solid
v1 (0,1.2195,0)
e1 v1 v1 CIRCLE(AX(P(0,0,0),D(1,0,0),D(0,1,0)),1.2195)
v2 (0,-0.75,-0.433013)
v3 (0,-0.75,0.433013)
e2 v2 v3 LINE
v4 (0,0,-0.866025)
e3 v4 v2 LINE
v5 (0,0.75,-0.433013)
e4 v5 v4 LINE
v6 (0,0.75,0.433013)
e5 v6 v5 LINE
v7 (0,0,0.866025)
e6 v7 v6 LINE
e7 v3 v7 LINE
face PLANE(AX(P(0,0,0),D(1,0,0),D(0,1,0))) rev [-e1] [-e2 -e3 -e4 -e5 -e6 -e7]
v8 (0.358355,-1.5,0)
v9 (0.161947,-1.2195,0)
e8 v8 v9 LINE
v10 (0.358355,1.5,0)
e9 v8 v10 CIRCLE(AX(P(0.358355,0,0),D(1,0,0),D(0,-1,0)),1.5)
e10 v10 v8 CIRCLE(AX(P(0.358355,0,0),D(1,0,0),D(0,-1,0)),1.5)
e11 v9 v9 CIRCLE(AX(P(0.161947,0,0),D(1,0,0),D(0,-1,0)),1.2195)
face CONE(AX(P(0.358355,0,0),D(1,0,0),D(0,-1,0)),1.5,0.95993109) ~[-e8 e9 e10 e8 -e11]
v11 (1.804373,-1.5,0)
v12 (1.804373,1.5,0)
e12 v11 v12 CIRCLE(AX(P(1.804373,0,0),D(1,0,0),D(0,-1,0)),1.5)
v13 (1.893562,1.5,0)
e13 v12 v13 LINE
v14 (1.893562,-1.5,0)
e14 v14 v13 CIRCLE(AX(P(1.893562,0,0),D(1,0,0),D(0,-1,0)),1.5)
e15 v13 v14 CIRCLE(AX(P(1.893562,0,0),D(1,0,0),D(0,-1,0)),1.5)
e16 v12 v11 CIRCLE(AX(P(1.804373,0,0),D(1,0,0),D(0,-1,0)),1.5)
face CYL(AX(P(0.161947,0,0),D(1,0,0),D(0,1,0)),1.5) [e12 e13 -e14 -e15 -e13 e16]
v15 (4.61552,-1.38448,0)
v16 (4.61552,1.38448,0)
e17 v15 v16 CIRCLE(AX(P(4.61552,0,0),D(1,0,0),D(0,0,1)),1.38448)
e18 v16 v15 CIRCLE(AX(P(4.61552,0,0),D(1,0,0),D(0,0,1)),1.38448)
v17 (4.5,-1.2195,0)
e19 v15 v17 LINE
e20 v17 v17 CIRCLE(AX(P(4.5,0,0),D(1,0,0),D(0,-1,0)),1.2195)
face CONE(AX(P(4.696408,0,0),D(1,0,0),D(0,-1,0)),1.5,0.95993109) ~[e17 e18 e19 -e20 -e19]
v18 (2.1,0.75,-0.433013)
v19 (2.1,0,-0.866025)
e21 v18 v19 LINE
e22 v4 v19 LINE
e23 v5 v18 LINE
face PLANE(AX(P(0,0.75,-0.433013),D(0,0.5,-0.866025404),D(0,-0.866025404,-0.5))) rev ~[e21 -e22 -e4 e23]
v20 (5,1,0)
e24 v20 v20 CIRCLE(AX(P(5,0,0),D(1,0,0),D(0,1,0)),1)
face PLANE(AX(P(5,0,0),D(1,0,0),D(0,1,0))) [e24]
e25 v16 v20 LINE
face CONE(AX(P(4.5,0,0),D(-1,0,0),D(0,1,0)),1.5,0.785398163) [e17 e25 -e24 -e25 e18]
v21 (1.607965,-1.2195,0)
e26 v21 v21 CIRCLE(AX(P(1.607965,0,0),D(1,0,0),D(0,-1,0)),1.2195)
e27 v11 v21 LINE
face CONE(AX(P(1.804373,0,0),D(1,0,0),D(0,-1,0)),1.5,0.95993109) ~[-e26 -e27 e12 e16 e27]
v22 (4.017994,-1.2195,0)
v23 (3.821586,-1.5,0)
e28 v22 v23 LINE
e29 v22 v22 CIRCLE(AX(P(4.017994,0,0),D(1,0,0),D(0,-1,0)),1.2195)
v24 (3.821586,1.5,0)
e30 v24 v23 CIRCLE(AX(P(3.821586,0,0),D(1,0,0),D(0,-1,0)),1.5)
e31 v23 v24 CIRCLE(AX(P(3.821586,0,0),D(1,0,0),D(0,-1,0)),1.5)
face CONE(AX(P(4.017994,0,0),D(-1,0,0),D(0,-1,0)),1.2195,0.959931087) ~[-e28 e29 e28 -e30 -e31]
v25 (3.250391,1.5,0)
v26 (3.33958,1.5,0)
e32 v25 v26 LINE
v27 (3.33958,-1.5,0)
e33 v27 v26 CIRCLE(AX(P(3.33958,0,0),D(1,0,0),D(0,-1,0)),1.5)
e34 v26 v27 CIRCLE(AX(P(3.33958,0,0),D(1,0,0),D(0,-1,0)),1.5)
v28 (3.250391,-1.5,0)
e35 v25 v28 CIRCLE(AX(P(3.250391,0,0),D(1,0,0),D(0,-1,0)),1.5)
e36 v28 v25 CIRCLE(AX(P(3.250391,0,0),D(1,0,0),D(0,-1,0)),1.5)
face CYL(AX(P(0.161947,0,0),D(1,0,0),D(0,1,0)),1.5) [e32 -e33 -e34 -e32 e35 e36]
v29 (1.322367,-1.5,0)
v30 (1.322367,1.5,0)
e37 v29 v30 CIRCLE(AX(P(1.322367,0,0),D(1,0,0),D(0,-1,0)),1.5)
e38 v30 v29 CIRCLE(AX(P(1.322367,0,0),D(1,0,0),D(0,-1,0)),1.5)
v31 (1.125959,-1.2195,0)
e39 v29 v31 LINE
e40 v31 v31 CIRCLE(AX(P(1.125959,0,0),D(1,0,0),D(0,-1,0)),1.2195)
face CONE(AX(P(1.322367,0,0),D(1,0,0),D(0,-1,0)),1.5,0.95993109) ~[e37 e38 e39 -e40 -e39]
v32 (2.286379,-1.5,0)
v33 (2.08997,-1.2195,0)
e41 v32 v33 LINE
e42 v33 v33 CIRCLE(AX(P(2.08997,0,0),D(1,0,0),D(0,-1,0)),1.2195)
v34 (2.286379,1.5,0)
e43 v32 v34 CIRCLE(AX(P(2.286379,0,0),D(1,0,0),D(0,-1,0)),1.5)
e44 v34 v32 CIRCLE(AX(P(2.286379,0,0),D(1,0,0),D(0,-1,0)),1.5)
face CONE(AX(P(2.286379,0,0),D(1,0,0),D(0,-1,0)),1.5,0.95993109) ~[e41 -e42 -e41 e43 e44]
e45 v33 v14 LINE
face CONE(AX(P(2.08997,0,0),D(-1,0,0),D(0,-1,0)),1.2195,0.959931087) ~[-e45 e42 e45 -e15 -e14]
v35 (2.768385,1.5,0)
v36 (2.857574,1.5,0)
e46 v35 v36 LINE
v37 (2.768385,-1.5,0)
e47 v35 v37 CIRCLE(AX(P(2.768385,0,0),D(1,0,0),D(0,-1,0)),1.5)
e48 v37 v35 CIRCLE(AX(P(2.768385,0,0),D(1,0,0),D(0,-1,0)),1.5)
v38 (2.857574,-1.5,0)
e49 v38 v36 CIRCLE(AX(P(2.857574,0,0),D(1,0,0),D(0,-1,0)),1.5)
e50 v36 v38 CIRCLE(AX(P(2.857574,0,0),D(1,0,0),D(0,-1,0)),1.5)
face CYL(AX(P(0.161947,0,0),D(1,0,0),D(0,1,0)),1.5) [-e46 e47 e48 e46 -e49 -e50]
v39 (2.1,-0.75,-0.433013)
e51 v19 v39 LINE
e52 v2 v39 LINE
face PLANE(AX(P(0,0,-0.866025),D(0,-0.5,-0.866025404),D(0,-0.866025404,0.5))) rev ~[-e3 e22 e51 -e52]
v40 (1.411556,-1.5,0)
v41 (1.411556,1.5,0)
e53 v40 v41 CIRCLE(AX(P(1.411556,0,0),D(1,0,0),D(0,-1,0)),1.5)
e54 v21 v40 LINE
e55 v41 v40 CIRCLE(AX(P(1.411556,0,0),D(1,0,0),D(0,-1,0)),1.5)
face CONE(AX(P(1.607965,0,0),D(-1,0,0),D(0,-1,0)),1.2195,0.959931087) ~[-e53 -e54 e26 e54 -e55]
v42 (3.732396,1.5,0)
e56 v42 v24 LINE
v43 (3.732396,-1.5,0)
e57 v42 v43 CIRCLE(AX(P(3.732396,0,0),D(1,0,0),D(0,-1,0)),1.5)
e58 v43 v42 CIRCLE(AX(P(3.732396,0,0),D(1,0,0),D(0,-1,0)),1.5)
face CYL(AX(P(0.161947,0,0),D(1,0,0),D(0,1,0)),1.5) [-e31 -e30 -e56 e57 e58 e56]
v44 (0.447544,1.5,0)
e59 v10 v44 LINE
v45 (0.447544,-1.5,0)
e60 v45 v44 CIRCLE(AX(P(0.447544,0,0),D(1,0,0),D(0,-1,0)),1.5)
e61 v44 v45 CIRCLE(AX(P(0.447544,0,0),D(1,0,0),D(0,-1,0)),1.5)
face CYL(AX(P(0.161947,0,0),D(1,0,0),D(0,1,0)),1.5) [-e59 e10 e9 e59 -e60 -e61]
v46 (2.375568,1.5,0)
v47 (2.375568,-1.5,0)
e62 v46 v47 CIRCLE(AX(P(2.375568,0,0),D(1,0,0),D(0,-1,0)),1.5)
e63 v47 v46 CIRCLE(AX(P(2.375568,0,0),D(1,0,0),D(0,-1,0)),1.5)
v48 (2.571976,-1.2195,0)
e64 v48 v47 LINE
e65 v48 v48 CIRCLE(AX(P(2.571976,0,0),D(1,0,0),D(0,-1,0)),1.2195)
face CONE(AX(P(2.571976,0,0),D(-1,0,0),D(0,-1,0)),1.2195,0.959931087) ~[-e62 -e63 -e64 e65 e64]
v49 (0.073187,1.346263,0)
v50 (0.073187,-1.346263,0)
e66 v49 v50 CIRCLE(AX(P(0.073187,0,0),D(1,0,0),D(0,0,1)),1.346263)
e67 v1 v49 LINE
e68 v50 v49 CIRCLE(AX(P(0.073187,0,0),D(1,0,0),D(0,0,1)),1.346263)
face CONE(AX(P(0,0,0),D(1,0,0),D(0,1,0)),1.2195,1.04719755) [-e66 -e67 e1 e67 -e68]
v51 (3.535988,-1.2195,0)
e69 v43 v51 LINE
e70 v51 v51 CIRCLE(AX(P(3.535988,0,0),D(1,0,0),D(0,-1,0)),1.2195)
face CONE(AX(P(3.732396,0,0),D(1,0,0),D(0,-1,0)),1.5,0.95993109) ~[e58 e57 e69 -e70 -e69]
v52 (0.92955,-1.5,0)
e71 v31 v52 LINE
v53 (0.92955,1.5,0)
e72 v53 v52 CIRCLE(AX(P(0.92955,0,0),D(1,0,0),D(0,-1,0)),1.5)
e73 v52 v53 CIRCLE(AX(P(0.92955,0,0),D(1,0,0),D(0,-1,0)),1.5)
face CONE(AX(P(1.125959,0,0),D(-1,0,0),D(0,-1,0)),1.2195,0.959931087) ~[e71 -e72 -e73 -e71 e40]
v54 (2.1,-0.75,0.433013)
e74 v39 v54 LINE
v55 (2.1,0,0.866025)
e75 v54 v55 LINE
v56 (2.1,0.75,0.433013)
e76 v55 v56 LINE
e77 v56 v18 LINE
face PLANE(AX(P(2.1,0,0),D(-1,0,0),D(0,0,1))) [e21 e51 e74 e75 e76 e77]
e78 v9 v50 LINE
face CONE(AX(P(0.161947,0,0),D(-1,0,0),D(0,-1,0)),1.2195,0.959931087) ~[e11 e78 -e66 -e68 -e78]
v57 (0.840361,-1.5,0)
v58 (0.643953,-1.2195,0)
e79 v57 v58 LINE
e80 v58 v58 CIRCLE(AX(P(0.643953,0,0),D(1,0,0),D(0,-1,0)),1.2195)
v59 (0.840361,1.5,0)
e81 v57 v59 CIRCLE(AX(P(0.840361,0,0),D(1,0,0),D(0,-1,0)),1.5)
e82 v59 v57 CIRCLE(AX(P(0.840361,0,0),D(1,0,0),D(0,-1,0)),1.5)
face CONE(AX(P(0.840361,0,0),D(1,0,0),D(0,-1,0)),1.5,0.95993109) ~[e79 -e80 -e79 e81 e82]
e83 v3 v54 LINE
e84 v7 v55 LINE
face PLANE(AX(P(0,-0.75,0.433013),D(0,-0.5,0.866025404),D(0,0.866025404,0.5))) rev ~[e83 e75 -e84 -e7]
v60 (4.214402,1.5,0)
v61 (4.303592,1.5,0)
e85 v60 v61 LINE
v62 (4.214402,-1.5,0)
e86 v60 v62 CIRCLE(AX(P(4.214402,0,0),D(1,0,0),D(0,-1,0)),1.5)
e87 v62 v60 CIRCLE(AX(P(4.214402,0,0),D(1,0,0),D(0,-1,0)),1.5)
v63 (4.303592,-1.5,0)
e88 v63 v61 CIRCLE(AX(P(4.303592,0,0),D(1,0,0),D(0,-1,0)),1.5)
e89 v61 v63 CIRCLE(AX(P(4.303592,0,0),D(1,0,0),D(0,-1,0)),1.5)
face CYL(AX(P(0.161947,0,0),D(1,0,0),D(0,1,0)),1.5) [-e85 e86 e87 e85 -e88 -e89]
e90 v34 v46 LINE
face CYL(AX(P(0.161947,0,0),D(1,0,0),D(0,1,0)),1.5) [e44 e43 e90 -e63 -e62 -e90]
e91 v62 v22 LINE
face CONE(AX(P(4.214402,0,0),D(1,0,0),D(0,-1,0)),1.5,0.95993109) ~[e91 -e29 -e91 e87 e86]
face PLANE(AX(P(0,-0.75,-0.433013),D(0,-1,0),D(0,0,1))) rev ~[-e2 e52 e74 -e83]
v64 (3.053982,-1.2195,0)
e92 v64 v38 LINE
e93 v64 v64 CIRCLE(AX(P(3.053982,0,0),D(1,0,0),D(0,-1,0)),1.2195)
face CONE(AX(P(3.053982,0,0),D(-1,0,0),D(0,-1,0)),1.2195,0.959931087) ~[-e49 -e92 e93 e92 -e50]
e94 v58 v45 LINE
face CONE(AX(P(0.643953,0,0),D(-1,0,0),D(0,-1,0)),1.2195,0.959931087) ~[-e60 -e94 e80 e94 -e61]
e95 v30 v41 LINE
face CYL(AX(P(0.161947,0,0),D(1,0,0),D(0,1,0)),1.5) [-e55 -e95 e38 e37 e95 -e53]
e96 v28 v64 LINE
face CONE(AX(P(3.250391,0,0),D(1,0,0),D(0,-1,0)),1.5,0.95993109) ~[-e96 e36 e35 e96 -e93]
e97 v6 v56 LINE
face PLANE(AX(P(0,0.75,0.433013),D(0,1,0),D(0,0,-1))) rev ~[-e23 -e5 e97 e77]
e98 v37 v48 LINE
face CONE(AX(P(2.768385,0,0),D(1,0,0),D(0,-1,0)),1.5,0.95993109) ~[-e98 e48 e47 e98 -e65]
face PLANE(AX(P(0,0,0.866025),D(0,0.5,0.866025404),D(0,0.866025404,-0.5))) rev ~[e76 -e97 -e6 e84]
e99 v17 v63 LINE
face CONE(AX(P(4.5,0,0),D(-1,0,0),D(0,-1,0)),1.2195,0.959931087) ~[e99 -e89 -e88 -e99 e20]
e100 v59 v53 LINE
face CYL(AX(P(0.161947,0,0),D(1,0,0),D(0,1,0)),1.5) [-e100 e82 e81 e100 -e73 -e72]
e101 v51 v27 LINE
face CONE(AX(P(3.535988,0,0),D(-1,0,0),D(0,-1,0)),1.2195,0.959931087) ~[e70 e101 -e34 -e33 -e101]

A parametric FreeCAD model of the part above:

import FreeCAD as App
import Part
import Sketcher
Q = App.Units.Quantity


def add_polygon(sketch, points):
    """Adds a closed chain of lines whose ends are joined by coincident constraints."""
    first, n = sketch.GeometryCount, len(points)
    for a, b in zip(points, points[1:] + points[:1]):
        sketch.addGeometry(Part.LineSegment(App.Vector(*a, 0), App.Vector(*b, 0)), False)
    for i in range(n):
        sketch.addConstraint(Sketcher.Constraint("Coincident", first + i, 2, first + (i + 1) % n, 1))

doc = App.newDocument("Part")
body = doc.addObject("PartDesign::Body", "Body")

# Sketch on XY plane
sketch1 = body.newObject("Sketcher::SketchObject", "Sketch")
sketch1.AttachmentSupport = (doc.getObject("XY_Plane"), [""])
sketch1.MapMode = "FlatFace"
add_polygon(sketch1, [(0, 1.22), (0, 0), (5, 0), (5, 1), (4.5, 1.5), (0.16, 1.5)])  # lines 0-5
sketch1.addConstraint([
    Sketcher.Constraint("Vertical", 0),
    Sketcher.Constraint("Horizontal", 1),
    Sketcher.Constraint("Vertical", 2),
    Sketcher.Constraint("Horizontal", 4),
    Sketcher.Constraint("Coincident", 0, 2, -1, 1),
    Sketcher.Constraint("DistanceX", 1, 1, 1, 2, Q("5 mm")),
    Sketcher.Constraint("DistanceY", 2, 1, 2, 2, Q("1 mm")),
    Sketcher.Constraint("Angle", 3, Q("135 deg")),
    Sketcher.Constraint("Angle", 5, Q("-120 deg")),
    Sketcher.Constraint("DistanceX", -1, 1, 3, 2, Q("4.5 mm")),
    Sketcher.Constraint("DistanceY", 0, 2, 0, 1, Q("1.2195 mm")),
])
revolution = body.newObject("PartDesign::Revolution", "Revolution")
revolution.Profile = sketch1
revolution.ReferenceAxis = (sketch1, ["H_Axis"])
revolution.Angle = 360

# Sketch on YZ plane
sketch2 = body.newObject("Sketcher::SketchObject", "Sketch001")
sketch2.AttachmentSupport = (doc.getObject("YZ_Plane"), [""])
sketch2.MapMode = "FlatFace"
add_polygon(sketch2, [(0.8, 0.4), (0.8, -0.4), (0, -0.9), (-0.8, -0.4), (-0.8, 0.4), (0, 0.9)])  # lines 0-5
sketch2.addConstraint([
    Sketcher.Constraint("Vertical", 0),
    Sketcher.Constraint("Vertical", 3),
    Sketcher.Constraint("Symmetric", 0, 2, 3, 2, -1, 1),
    Sketcher.Constraint("Symmetric", 1, 2, 4, 2, -1, 1),
    Sketcher.Constraint("PointOnObject", 1, 2, -2),
    Sketcher.Constraint("Parallel", 2, 5),
    Sketcher.Constraint("Horizontal", 0, 2, 2, 2),
    Sketcher.Constraint("Angle", 1, Q("-150 deg")),
    Sketcher.Constraint("DistanceX", 2, 2, 0, 2, Q("1.5 mm")),
    Sketcher.Constraint("DistanceY", 0, 2, 0, 1, Q("0.866025 mm")),
])
pocket1 = body.newObject("PartDesign::Pocket", "Pocket")
pocket1.Profile = sketch2
pocket1.Length = 2.1
pocket1.Reversed = True

# Sketch on XY plane
sketch3 = body.newObject("Sketcher::SketchObject", "Sketch002")
sketch3.AttachmentSupport = (doc.getObject("XY_Plane"), [""])
sketch3.MapMode = "FlatFace"
add_polygon(sketch3, [(0.16, -1.22), (-0.03, -1.5), (-0.03, -1.88), (0.36, -1.88), (0.36, -1.5)])  # lines 0-4
sketch3.addConstraint([
    Sketcher.Constraint("Vertical", 1),
    Sketcher.Constraint("Horizontal", 2),
    Sketcher.Constraint("Vertical", 3),
    Sketcher.Constraint("Horizontal", 0, 2, 3, 2),
    Sketcher.Constraint("Equal", 0, 4),
    Sketcher.Constraint("Angle", 0, Q("-125 deg")),
    Sketcher.Constraint("DistanceY", 0, 2, -1, 1, Q("1.5 mm")),
    Sketcher.Constraint("DistanceY", 1, 2, 1, 1, Q("0.375 mm")),
    Sketcher.Constraint("DistanceY", 4, 2, -1, 1, Q("1.2195 mm")),
    Sketcher.Constraint("DistanceX", 0, 2, -1, 1, Q("0.034461 mm")),
])
groove = body.newObject("PartDesign::Groove", "Groove")
groove.Profile = sketch3
groove.ReferenceAxis = (sketch3, ["H_Axis"])
groove.Angle = 360
doc.recompute()

linearpattern = body.newObject("PartDesign::LinearPattern", "LinearPattern")
linearpattern.Originals = [groove]
linearpattern.Direction = (doc.getObject("X_Axis"), [""])
linearpattern.Mode = "offset"
linearpattern.Offset = 0.482006
linearpattern.Occurrences = 10
body.Tip = linearpattern

doc.recompute()
